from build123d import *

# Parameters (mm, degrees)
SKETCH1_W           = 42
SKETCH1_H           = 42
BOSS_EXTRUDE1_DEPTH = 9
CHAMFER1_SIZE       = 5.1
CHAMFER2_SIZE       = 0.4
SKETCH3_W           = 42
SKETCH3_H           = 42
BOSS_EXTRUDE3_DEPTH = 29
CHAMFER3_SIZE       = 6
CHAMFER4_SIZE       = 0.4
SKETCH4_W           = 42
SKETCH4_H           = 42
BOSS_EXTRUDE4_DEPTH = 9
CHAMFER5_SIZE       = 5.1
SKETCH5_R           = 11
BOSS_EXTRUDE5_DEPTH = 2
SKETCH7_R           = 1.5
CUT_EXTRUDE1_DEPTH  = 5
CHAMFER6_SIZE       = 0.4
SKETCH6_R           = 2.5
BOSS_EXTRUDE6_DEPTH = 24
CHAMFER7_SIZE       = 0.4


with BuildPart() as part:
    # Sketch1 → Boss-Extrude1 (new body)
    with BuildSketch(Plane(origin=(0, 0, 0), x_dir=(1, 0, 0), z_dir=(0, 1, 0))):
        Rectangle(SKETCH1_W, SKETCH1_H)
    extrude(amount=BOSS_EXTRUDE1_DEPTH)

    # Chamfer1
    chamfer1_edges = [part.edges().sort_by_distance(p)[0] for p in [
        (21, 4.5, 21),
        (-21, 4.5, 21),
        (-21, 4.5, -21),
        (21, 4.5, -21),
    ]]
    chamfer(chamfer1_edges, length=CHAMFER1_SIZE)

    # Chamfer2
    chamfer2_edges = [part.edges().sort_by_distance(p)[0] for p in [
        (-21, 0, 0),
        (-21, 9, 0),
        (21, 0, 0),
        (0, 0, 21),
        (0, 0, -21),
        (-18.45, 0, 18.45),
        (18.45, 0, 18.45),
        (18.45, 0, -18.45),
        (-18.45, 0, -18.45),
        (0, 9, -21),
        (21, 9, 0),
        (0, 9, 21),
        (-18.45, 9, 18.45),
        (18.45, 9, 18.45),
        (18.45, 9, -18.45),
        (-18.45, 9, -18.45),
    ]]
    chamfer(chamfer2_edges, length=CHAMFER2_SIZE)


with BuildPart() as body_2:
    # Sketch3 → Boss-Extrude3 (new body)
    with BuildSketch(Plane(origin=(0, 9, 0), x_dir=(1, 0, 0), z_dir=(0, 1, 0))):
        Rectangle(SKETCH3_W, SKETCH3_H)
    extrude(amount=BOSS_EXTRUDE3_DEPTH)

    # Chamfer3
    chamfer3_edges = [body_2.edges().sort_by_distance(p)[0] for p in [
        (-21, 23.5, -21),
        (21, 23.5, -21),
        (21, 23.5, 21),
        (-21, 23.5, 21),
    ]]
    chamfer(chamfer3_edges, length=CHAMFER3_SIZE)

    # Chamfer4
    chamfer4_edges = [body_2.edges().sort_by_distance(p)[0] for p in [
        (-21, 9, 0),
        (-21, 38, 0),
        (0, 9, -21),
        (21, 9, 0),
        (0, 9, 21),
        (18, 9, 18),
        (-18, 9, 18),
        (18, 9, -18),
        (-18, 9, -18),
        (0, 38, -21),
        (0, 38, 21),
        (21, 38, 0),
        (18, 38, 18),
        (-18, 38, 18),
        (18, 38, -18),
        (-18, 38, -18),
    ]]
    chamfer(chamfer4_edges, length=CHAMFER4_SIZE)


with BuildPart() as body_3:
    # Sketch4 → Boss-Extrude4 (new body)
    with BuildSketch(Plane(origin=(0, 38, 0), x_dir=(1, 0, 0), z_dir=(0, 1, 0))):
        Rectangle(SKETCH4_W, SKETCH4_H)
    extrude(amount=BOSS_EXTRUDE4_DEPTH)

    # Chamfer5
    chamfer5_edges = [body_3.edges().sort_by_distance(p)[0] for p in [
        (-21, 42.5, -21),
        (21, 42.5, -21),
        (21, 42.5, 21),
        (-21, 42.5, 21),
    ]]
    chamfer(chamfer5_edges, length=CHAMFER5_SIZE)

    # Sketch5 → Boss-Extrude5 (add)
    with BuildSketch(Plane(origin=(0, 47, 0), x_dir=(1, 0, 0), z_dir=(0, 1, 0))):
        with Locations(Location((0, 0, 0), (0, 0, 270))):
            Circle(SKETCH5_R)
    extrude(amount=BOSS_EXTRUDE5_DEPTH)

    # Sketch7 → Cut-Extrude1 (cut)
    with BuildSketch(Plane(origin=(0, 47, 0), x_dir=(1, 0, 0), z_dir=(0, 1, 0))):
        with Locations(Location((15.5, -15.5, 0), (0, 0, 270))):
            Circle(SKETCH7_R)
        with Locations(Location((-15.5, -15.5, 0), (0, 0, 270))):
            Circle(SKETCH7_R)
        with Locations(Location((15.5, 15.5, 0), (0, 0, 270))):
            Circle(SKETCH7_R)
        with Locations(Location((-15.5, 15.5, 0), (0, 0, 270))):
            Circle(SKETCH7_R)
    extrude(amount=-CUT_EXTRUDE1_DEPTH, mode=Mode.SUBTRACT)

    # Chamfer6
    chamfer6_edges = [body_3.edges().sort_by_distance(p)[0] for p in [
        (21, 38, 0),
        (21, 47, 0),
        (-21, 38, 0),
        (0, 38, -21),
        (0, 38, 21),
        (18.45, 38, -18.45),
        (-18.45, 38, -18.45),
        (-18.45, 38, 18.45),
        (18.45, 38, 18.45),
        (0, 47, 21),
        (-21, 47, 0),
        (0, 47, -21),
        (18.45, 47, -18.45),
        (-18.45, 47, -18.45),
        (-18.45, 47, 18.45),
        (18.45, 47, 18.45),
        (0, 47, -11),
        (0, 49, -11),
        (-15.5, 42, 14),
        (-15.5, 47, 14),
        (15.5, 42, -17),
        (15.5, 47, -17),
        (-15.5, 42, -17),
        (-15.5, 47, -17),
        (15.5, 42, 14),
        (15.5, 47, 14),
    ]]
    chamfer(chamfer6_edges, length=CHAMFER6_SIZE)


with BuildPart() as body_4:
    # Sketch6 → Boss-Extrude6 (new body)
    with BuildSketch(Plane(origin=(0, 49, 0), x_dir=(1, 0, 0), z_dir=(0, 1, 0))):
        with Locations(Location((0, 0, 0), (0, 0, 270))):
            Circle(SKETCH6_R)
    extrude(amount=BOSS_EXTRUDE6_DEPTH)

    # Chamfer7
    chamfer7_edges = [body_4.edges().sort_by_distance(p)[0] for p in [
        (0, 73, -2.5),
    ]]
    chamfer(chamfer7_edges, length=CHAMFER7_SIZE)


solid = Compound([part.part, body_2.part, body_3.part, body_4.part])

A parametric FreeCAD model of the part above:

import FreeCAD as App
import Part
import Sketcher
from FreeCAD import Vector
Q = App.Units.Quantity


def edges_at(feature, points):
    """Names of the edges that pass closest to the given points."""
    edges = feature.Shape.Edges
    near = lambda p: min(range(len(edges)), key=lambda i: edges[i].distToShape(Part.Vertex(*p))[0])
    return sorted({f"Edge{near(p) + 1}" for p in points})

doc = App.newDocument("Part")
body = doc.addObject("PartDesign::Body", "Body")

# Sketch on XZ plane
sketch1 = body.newObject("Sketcher::SketchObject", "Sketch")
sketch1.AttachmentSupport = (doc.getObject("XZ_Plane"), [""])
sketch1.MapMode = "FlatFace"
sketch1.addGeometry(Part.LineSegment(Vector(-21, -21, 0), Vector(-21, 21, 0)), False)
sketch1.addGeometry(Part.LineSegment(Vector(-21, 21, 0), Vector(21, 21, 0)), False)
sketch1.addGeometry(Part.LineSegment(Vector(21, 21, 0), Vector(21, -21, 0)), False)
sketch1.addGeometry(Part.LineSegment(Vector(21, -21, 0), Vector(-21, -21, 0)), False)
sketch1.addConstraint(Sketcher.Constraint("Coincident", 0, 2, 1, 1))
sketch1.addConstraint(Sketcher.Constraint("Coincident", 1, 2, 2, 1))
sketch1.addConstraint(Sketcher.Constraint("Coincident", 2, 2, 3, 1))
sketch1.addConstraint(Sketcher.Constraint("Coincident", 3, 2, 0, 1))
sketch1.addConstraint(Sketcher.Constraint("Vertical", 0))
sketch1.addConstraint(Sketcher.Constraint("Horizontal", 1))
sketch1.addConstraint(Sketcher.Constraint("Vertical", 2))
sketch1.addConstraint(Sketcher.Constraint("Horizontal", 3))
sketch1.addConstraint(Sketcher.Constraint("Symmetric", 0, 2, 2, 2, -1, 1))
sketch1.addConstraint(Sketcher.Constraint("Equal", 3, 0))
sketch1.addConstraint(Sketcher.Constraint("DistanceX", 1, 1, 1, 2, Q("42 mm")))
pad1 = body.newObject("PartDesign::Pad", "Pad")
pad1.Profile = sketch1
pad1.Length = 9
pad1.Reversed = True
doc.recompute()

chamfer = body.newObject("PartDesign::Chamfer", "Chamfer")
chamfer.Base = (pad1, edges_at(pad1, [
    (21, 4.5, 21),
    (-21, 4.5, 21),
    (-21, 4.5, -21),
    (21, 4.5, -21),
]))
chamfer.Size = 5.1
doc.recompute()

chamfer2 = body.newObject("PartDesign::Chamfer", "Chamfer001")
chamfer2.Base = (chamfer, edges_at(chamfer, [
    (-21, 0, 0),
    (-21, 9, 0),
    (21, 0, 0),
    (0, 0, 21),
    (0, 0, -21),
    (-18.45, 0, 18.45),
    (18.45, 0, 18.45),
    (18.45, 0, -18.45),
    (-18.45, 0, -18.45),
    (0, 9, -21),
    (21, 9, 0),
    (0, 9, 21),
    (-18.45, 9, 18.45),
    (18.45, 9, 18.45),
    (18.45, 9, -18.45),
    (-18.45, 9, -18.45),
]))
chamfer2.Size = 0.4
body2 = doc.addObject("PartDesign::Body", "Body001")

# Sketch on XZ plane
sketch2 = body2.newObject("Sketcher::SketchObject", "Sketch001")
sketch2.AttachmentSupport = (doc.getObject("XZ_Plane001"), [""])
sketch2.MapMode = "FlatFace"
sketch2.AttachmentOffset = App.Placement(Vector(0, 0, -9), App.Rotation())
sketch2.addGeometry(Part.LineSegment(Vector(-21, -21, 0), Vector(-21, 21, 0)), False)
sketch2.addGeometry(Part.LineSegment(Vector(-21, 21, 0), Vector(21, 21, 0)), False)
sketch2.addGeometry(Part.LineSegment(Vector(21, 21, 0), Vector(21, -21, 0)), False)
sketch2.addGeometry(Part.LineSegment(Vector(21, -21, 0), Vector(-21, -21, 0)), False)
sketch2.addConstraint(Sketcher.Constraint("Coincident", 0, 2, 1, 1))
sketch2.addConstraint(Sketcher.Constraint("Coincident", 1, 2, 2, 1))
sketch2.addConstraint(Sketcher.Constraint("Coincident", 2, 2, 3, 1))
sketch2.addConstraint(Sketcher.Constraint("Coincident", 3, 2, 0, 1))
sketch2.addConstraint(Sketcher.Constraint("Vertical", 0))
sketch2.addConstraint(Sketcher.Constraint("Horizontal", 1))
sketch2.addConstraint(Sketcher.Constraint("Vertical", 2))
sketch2.addConstraint(Sketcher.Constraint("Horizontal", 3))
sketch2.addConstraint(Sketcher.Constraint("Symmetric", 0, 2, 2, 2, -1, 1))
sketch2.addConstraint(Sketcher.Constraint("Equal", 3, 0))
sketch2.addConstraint(Sketcher.Constraint("DistanceX", 1, 1, 1, 2, Q("42 mm")))
pad2 = body2.newObject("PartDesign::Pad", "Pad001")
pad2.Profile = sketch2
pad2.Length = 29
pad2.Reversed = True
doc.recompute()

chamfer3 = body2.newObject("PartDesign::Chamfer", "Chamfer002")
chamfer3.Base = (pad2, edges_at(pad2, [
    (-21, 23.5, -21),
    (21, 23.5, -21),
    (21, 23.5, 21),
    (-21, 23.5, 21),
]))
chamfer3.Size = 6
doc.recompute()

chamfer4 = body2.newObject("PartDesign::Chamfer", "Chamfer003")
chamfer4.Base = (chamfer3, edges_at(chamfer3, [
    (-21, 9, 0),
    (-21, 38, 0),
    (0, 9, -21),
    (21, 9, 0),
    (0, 9, 21),
    (18, 9, 18),
    (-18, 9, 18),
    (18, 9, -18),
    (-18, 9, -18),
    (0, 38, -21),
    (0, 38, 21),
    (21, 38, 0),
    (18, 38, 18),
    (-18, 38, 18),
    (18, 38, -18),
    (-18, 38, -18),
]))
chamfer4.Size = 0.4
body3 = doc.addObject("PartDesign::Body", "Body002")

# Sketch on XZ plane
sketch3 = body3.newObject("Sketcher::SketchObject", "Sketch002")
sketch3.AttachmentSupport = (doc.getObject("XZ_Plane002"), [""])
sketch3.MapMode = "FlatFace"
sketch3.AttachmentOffset = App.Placement(Vector(0, 0, -38), App.Rotation())
sketch3.addGeometry(Part.LineSegment(Vector(-21, -21, 0), Vector(-21, 21, 0)), False)
sketch3.addGeometry(Part.LineSegment(Vector(-21, 21, 0), Vector(21, 21, 0)), False)
sketch3.addGeometry(Part.LineSegment(Vector(21, 21, 0), Vector(21, -21, 0)), False)
sketch3.addGeometry(Part.LineSegment(Vector(21, -21, 0), Vector(-21, -21, 0)), False)
sketch3.addConstraint(Sketcher.Constraint("Coincident", 0, 2, 1, 1))
sketch3.addConstraint(Sketcher.Constraint("Coincident", 1, 2, 2, 1))
sketch3.addConstraint(Sketcher.Constraint("Coincident", 2, 2, 3, 1))
sketch3.addConstraint(Sketcher.Constraint("Coincident", 3, 2, 0, 1))
sketch3.addConstraint(Sketcher.Constraint("Vertical", 0))
sketch3.addConstraint(Sketcher.Constraint("Horizontal", 1))
sketch3.addConstraint(Sketcher.Constraint("Vertical", 2))
sketch3.addConstraint(Sketcher.Constraint("Horizontal", 3))
sketch3.addConstraint(Sketcher.Constraint("Symmetric", 0, 2, 2, 2, -1, 1))
sketch3.addConstraint(Sketcher.Constraint("Equal", 3, 0))
sketch3.addConstraint(Sketcher.Constraint("DistanceX", 1, 1, 1, 2, Q("42 mm")))
pad3 = body3.newObject("PartDesign::Pad", "Pad002")
pad3.Profile = sketch3
pad3.Length = 9
pad3.Reversed = True
doc.recompute()

chamfer5 = body3.newObject("PartDesign::Chamfer", "Chamfer004")
chamfer5.Base = (pad3, edges_at(pad3, [
    (-21, 42.5, -21),
    (21, 42.5, -21),
    (21, 42.5, 21),
    (-21, 42.5, 21),
]))
chamfer5.Size = 5.1

# Sketch on XZ plane
sketch4 = body3.newObject("Sketcher::SketchObject", "Sketch003")
sketch4.AttachmentSupport = (doc.getObject("XZ_Plane002"), [""])
sketch4.MapMode = "FlatFace"
sketch4.AttachmentOffset = App.Placement(Vector(0, 0, -47), App.Rotation())
sketch4.addGeometry(Part.Circle(Vector(0, 0, 0), Vector(0, 0, 1), 11), False)
sketch4.addConstraint(Sketcher.Constraint("Coincident", 0, 3, -1, 1))
sketch4.addConstraint(Sketcher.Constraint("Diameter", 0, Q("22 mm")))
pad4 = body3.newObject("PartDesign::Pad", "Pad003")
pad4.Profile = sketch4
pad4.Length = 2
pad4.Reversed = True

# Sketch on XZ plane
sketch5 = body3.newObject("Sketcher::SketchObject", "Sketch004")
sketch5.AttachmentSupport = (doc.getObject("XZ_Plane002"), [""])
sketch5.MapMode = "FlatFace"
sketch5.AttachmentOffset = App.Placement(Vector(0, 0, -47), App.Rotation())
sketch5.addGeometry(Part.Circle(Vector(15.5, 15.5, 0), Vector(0, 0, 1), 1.5), False)
sketch5.addGeometry(Part.Circle(Vector(-15.5, 15.5, 0), Vector(0, 0, 1), 1.5), False)
sketch5.addGeometry(Part.Circle(Vector(15.5, -15.5, 0), Vector(0, 0, 1), 1.5), False)
sketch5.addGeometry(Part.Circle(Vector(-15.5, -15.5, 0), Vector(0, 0, 1), 1.5), False)
sketch5.addConstraint(Sketcher.Constraint("Equal", 0, 1))
sketch5.addConstraint(Sketcher.Constraint("Equal", 1, 2))
sketch5.addConstraint(Sketcher.Constraint("Equal", 2, 3))
sketch5.addConstraint(Sketcher.Constraint("Symmetric", 1, 3, 2, 3, -1, 1))
sketch5.addConstraint(Sketcher.Constraint("Symmetric", 0, 3, 3, 3, -1, 1))
sketch5.addConstraint(Sketcher.Constraint("Symmetric", 0, 3, 1, 3, -2))
sketch5.addConstraint(Sketcher.Constraint("Diameter", 0, Q("3 mm")))
sketch5.addConstraint(Sketcher.Constraint("DistanceX", 1, 3, 0, 3, Q("31 mm")))
sketch5.addConstraint(Sketcher.Constraint("DistanceY", 2, 3, 0, 3, Q("31 mm")))
pocket1 = body3.newObject("PartDesign::Pocket", "Pocket")
pocket1.Profile = sketch5
pocket1.Length = 5
pocket1.Reversed = True
doc.recompute()

chamfer6 = body3.newObject("PartDesign::Chamfer", "Chamfer005")
chamfer6.Base = (pocket1, edges_at(pocket1, [
    (21, 38, 0),
    (21, 47, 0),
    (-21, 38, 0),
    (0, 38, -21),
    (0, 38, 21),
    (18.45, 38, -18.45),
    (-18.45, 38, -18.45),
    (-18.45, 38, 18.45),
    (18.45, 38, 18.45),
    (0, 47, 21),
    (-21, 47, 0),
    (0, 47, -21),
    (18.45, 47, -18.45),
    (-18.45, 47, -18.45),
    (-18.45, 47, 18.45),
    (18.45, 47, 18.45),
    (0, 47, -11),
    (0, 49, -11),
    (-15.5, 42, 14),
    (-15.5, 47, 14),
    (15.5, 42, -17),
    (15.5, 47, -17),
    (-15.5, 42, -17),
    (-15.5, 47, -17),
    (15.5, 42, 14),
    (15.5, 47, 14),
]))
chamfer6.Size = 0.4
body4 = doc.addObject("PartDesign::Body", "Body003")

# Sketch on XZ plane
sketch6 = body4.newObject("Sketcher::SketchObject", "Sketch005")
sketch6.AttachmentSupport = (doc.getObject("XZ_Plane003"), [""])
sketch6.MapMode = "FlatFace"
sketch6.AttachmentOffset = App.Placement(Vector(0, 0, -49), App.Rotation())
sketch6.addGeometry(Part.Circle(Vector(0, 0, 0), Vector(0, 0, 1), 2.5), False)
sketch6.addConstraint(Sketcher.Constraint("Coincident", 0, 3, -1, 1))
sketch6.addConstraint(Sketcher.Constraint("Diameter", 0, Q("5 mm")))
pad5 = body4.newObject("PartDesign::Pad", "Pad004")
pad5.Profile = sketch6
pad5.Length = 24
pad5.Reversed = True
doc.recompute()

chamfer7 = body4.newObject("PartDesign::Chamfer", "Chamfer006")
chamfer7.Base = (pad5, edges_at(pad5, [(0, 73, -2.5)]))
chamfer7.Size = 0.4

doc.recompute()
